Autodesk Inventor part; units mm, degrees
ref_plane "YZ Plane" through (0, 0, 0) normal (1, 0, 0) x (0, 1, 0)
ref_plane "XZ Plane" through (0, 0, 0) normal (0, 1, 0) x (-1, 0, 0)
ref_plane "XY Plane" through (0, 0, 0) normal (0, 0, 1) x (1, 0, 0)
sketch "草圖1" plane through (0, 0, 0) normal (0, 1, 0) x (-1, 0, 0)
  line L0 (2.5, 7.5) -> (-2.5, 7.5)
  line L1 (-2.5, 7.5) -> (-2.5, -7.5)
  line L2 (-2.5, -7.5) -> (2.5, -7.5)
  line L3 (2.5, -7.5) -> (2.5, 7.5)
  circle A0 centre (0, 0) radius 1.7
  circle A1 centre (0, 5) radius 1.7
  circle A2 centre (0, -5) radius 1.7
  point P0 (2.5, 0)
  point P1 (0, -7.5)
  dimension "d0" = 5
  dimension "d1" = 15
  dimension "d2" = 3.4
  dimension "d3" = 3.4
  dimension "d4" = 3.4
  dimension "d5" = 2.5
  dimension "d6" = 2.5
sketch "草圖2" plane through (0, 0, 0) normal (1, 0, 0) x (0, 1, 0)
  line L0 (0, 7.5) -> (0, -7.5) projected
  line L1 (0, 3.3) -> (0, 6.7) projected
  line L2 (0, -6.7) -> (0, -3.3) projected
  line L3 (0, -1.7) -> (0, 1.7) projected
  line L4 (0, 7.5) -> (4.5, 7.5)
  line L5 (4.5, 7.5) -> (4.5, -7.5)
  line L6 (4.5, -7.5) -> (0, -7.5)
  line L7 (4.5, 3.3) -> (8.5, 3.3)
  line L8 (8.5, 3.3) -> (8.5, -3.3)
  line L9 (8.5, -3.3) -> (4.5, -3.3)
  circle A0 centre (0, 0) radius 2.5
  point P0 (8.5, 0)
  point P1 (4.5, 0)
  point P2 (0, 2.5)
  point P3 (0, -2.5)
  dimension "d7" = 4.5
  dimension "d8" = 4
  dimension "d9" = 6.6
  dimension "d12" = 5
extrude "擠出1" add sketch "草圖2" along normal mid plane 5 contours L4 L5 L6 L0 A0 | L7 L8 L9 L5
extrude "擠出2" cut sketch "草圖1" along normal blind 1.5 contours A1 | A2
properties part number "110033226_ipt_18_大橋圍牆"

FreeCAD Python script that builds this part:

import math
import FreeCAD as App
import Part
import Sketcher
from FreeCAD import Vector

doc = App.newDocument("Part")
body = doc.addObject("PartDesign::Body", "Body")

sketch1 = doc.addObject("Sketcher::SketchObject", "Sketch")
body.addObject(sketch1)
sketch1.AttachmentSupport = (doc.YZ_Plane, [""])
sketch1.MapMode = "FlatFace"
sketch1.addGeometry(Part.LineSegment(Vector(4.5, 7.5, 0), Vector(0, 7.5, 0)), False)
sketch1.addGeometry(Part.LineSegment(Vector(0, 7.5, 0), Vector(0, 2.5, 0)), False)
sketch1.addGeometry(Part.ArcOfCircle(Part.Circle(Vector(0, 0, 0), Vector(0, 0, 1), 2.5), math.radians(-90), math.radians(90)), False)
sketch1.addGeometry(Part.LineSegment(Vector(0, -2.5, 0), Vector(0, -7.5, 0)), False)
sketch1.addGeometry(Part.LineSegment(Vector(0, -7.5, 0), Vector(4.5, -7.5, 0)), False)
sketch1.addGeometry(Part.LineSegment(Vector(4.5, -7.5, 0), Vector(4.5, -3.3, 0)), False)
sketch1.addGeometry(Part.LineSegment(Vector(4.5, -3.3, 0), Vector(8.5, -3.3, 0)), False)
sketch1.addGeometry(Part.LineSegment(Vector(8.5, -3.3, 0), Vector(8.5, 3.3, 0)), False)
sketch1.addGeometry(Part.LineSegment(Vector(8.5, 3.3, 0), Vector(4.5, 3.3, 0)), False)
sketch1.addGeometry(Part.LineSegment(Vector(4.5, 3.3, 0), Vector(4.5, 7.5, 0)), False)
sketch1.addConstraint(Sketcher.Constraint("Coincident", 0, 2, 1, 1))
sketch1.addConstraint(Sketcher.Constraint("Coincident", 1, 2, 2, 2))
sketch1.addConstraint(Sketcher.Constraint("Coincident", 2, 1, 3, 1))
sketch1.addConstraint(Sketcher.Constraint("Coincident", 3, 2, 4, 1))
sketch1.addConstraint(Sketcher.Constraint("Coincident", 4, 2, 5, 1))
sketch1.addConstraint(Sketcher.Constraint("Coincident", 5, 2, 6, 1))
sketch1.addConstraint(Sketcher.Constraint("Coincident", 6, 2, 7, 1))
sketch1.addConstraint(Sketcher.Constraint("Coincident", 7, 2, 8, 1))
sketch1.addConstraint(Sketcher.Constraint("Coincident", 8, 2, 9, 1))
sketch1.addConstraint(Sketcher.Constraint("Coincident", 9, 2, 0, 1))
sketch1.addConstraint(Sketcher.Constraint("Horizontal", 0))
sketch1.addConstraint(Sketcher.Constraint("Vertical", 1))
sketch1.addConstraint(Sketcher.Constraint("Vertical", 3))
sketch1.addConstraint(Sketcher.Constraint("Horizontal", 4))
sketch1.addConstraint(Sketcher.Constraint("Vertical", 5))
sketch1.addConstraint(Sketcher.Constraint("Horizontal", 6))
sketch1.addConstraint(Sketcher.Constraint("Vertical", 7))
sketch1.addConstraint(Sketcher.Constraint("Horizontal", 8))
sketch1.addConstraint(Sketcher.Constraint("Vertical", 9))
sketch1.addConstraint(Sketcher.Constraint("Coincident", 2, 3, -1, 1))
sketch1.addConstraint(Sketcher.Constraint("Symmetric", 0, 2, 3, 2, -1, 1))
sketch1.addConstraint(Sketcher.Constraint("Symmetric", 5, 2, 8, 2, -1))
sketch1.addConstraint(Sketcher.Constraint("PointOnObject", 0, 2, -2))
sketch1.addConstraint(Sketcher.Constraint("Radius", 2, 2.5))
sketch1.addConstraint(Sketcher.Constraint("DistanceX", 6, 1, 6, 2, 4.0))
sketch1.addConstraint(Sketcher.Constraint("DistanceY", 1, 2, 1, 1, 5.0))
sketch1.addConstraint(Sketcher.Constraint("DistanceX", 0, 2, 0, 1, 4.5))
sketch1.addConstraint(Sketcher.Constraint("DistanceY", 7, 1, 7, 2, 6.6))
pad1 = doc.addObject("PartDesign::Pad", "Pad")
body.addObject(pad1)
pad1.Profile = sketch1
pad1.Length = 5
pad1.Midplane = True

sketch2 = doc.addObject("Sketcher::SketchObject", "Sketch001")
body.addObject(sketch2)
sketch2.AttachmentSupport = (doc.XZ_Plane, [""])
sketch2.MapMode = "FlatFace"
sketch2.addGeometry(Part.Circle(Vector(0, 5, 0), Vector(0, 0, 1), 1.7), False)
sketch2.addGeometry(Part.Circle(Vector(0, -5, 0), Vector(0, 0, 1), 1.7), False)
sketch2.addConstraint(Sketcher.Constraint("Equal", 0, 1))
sketch2.addConstraint(Sketcher.Constraint("Symmetric", 0, 3, 1, 3, -1, 1))
sketch2.addConstraint(Sketcher.Constraint("PointOnObject", 0, 3, -2))
sketch2.addConstraint(Sketcher.Constraint("Diameter", 0, 3.4))
sketch2.addConstraint(Sketcher.Constraint("DistanceY", -1, 1, 0, 3, 5.0))
pocket1 = doc.addObject("PartDesign::Pocket", "Pocket")
body.addObject(pocket1)
pocket1.Profile = sketch2
pocket1.Length = 1.5

doc.recompute()
